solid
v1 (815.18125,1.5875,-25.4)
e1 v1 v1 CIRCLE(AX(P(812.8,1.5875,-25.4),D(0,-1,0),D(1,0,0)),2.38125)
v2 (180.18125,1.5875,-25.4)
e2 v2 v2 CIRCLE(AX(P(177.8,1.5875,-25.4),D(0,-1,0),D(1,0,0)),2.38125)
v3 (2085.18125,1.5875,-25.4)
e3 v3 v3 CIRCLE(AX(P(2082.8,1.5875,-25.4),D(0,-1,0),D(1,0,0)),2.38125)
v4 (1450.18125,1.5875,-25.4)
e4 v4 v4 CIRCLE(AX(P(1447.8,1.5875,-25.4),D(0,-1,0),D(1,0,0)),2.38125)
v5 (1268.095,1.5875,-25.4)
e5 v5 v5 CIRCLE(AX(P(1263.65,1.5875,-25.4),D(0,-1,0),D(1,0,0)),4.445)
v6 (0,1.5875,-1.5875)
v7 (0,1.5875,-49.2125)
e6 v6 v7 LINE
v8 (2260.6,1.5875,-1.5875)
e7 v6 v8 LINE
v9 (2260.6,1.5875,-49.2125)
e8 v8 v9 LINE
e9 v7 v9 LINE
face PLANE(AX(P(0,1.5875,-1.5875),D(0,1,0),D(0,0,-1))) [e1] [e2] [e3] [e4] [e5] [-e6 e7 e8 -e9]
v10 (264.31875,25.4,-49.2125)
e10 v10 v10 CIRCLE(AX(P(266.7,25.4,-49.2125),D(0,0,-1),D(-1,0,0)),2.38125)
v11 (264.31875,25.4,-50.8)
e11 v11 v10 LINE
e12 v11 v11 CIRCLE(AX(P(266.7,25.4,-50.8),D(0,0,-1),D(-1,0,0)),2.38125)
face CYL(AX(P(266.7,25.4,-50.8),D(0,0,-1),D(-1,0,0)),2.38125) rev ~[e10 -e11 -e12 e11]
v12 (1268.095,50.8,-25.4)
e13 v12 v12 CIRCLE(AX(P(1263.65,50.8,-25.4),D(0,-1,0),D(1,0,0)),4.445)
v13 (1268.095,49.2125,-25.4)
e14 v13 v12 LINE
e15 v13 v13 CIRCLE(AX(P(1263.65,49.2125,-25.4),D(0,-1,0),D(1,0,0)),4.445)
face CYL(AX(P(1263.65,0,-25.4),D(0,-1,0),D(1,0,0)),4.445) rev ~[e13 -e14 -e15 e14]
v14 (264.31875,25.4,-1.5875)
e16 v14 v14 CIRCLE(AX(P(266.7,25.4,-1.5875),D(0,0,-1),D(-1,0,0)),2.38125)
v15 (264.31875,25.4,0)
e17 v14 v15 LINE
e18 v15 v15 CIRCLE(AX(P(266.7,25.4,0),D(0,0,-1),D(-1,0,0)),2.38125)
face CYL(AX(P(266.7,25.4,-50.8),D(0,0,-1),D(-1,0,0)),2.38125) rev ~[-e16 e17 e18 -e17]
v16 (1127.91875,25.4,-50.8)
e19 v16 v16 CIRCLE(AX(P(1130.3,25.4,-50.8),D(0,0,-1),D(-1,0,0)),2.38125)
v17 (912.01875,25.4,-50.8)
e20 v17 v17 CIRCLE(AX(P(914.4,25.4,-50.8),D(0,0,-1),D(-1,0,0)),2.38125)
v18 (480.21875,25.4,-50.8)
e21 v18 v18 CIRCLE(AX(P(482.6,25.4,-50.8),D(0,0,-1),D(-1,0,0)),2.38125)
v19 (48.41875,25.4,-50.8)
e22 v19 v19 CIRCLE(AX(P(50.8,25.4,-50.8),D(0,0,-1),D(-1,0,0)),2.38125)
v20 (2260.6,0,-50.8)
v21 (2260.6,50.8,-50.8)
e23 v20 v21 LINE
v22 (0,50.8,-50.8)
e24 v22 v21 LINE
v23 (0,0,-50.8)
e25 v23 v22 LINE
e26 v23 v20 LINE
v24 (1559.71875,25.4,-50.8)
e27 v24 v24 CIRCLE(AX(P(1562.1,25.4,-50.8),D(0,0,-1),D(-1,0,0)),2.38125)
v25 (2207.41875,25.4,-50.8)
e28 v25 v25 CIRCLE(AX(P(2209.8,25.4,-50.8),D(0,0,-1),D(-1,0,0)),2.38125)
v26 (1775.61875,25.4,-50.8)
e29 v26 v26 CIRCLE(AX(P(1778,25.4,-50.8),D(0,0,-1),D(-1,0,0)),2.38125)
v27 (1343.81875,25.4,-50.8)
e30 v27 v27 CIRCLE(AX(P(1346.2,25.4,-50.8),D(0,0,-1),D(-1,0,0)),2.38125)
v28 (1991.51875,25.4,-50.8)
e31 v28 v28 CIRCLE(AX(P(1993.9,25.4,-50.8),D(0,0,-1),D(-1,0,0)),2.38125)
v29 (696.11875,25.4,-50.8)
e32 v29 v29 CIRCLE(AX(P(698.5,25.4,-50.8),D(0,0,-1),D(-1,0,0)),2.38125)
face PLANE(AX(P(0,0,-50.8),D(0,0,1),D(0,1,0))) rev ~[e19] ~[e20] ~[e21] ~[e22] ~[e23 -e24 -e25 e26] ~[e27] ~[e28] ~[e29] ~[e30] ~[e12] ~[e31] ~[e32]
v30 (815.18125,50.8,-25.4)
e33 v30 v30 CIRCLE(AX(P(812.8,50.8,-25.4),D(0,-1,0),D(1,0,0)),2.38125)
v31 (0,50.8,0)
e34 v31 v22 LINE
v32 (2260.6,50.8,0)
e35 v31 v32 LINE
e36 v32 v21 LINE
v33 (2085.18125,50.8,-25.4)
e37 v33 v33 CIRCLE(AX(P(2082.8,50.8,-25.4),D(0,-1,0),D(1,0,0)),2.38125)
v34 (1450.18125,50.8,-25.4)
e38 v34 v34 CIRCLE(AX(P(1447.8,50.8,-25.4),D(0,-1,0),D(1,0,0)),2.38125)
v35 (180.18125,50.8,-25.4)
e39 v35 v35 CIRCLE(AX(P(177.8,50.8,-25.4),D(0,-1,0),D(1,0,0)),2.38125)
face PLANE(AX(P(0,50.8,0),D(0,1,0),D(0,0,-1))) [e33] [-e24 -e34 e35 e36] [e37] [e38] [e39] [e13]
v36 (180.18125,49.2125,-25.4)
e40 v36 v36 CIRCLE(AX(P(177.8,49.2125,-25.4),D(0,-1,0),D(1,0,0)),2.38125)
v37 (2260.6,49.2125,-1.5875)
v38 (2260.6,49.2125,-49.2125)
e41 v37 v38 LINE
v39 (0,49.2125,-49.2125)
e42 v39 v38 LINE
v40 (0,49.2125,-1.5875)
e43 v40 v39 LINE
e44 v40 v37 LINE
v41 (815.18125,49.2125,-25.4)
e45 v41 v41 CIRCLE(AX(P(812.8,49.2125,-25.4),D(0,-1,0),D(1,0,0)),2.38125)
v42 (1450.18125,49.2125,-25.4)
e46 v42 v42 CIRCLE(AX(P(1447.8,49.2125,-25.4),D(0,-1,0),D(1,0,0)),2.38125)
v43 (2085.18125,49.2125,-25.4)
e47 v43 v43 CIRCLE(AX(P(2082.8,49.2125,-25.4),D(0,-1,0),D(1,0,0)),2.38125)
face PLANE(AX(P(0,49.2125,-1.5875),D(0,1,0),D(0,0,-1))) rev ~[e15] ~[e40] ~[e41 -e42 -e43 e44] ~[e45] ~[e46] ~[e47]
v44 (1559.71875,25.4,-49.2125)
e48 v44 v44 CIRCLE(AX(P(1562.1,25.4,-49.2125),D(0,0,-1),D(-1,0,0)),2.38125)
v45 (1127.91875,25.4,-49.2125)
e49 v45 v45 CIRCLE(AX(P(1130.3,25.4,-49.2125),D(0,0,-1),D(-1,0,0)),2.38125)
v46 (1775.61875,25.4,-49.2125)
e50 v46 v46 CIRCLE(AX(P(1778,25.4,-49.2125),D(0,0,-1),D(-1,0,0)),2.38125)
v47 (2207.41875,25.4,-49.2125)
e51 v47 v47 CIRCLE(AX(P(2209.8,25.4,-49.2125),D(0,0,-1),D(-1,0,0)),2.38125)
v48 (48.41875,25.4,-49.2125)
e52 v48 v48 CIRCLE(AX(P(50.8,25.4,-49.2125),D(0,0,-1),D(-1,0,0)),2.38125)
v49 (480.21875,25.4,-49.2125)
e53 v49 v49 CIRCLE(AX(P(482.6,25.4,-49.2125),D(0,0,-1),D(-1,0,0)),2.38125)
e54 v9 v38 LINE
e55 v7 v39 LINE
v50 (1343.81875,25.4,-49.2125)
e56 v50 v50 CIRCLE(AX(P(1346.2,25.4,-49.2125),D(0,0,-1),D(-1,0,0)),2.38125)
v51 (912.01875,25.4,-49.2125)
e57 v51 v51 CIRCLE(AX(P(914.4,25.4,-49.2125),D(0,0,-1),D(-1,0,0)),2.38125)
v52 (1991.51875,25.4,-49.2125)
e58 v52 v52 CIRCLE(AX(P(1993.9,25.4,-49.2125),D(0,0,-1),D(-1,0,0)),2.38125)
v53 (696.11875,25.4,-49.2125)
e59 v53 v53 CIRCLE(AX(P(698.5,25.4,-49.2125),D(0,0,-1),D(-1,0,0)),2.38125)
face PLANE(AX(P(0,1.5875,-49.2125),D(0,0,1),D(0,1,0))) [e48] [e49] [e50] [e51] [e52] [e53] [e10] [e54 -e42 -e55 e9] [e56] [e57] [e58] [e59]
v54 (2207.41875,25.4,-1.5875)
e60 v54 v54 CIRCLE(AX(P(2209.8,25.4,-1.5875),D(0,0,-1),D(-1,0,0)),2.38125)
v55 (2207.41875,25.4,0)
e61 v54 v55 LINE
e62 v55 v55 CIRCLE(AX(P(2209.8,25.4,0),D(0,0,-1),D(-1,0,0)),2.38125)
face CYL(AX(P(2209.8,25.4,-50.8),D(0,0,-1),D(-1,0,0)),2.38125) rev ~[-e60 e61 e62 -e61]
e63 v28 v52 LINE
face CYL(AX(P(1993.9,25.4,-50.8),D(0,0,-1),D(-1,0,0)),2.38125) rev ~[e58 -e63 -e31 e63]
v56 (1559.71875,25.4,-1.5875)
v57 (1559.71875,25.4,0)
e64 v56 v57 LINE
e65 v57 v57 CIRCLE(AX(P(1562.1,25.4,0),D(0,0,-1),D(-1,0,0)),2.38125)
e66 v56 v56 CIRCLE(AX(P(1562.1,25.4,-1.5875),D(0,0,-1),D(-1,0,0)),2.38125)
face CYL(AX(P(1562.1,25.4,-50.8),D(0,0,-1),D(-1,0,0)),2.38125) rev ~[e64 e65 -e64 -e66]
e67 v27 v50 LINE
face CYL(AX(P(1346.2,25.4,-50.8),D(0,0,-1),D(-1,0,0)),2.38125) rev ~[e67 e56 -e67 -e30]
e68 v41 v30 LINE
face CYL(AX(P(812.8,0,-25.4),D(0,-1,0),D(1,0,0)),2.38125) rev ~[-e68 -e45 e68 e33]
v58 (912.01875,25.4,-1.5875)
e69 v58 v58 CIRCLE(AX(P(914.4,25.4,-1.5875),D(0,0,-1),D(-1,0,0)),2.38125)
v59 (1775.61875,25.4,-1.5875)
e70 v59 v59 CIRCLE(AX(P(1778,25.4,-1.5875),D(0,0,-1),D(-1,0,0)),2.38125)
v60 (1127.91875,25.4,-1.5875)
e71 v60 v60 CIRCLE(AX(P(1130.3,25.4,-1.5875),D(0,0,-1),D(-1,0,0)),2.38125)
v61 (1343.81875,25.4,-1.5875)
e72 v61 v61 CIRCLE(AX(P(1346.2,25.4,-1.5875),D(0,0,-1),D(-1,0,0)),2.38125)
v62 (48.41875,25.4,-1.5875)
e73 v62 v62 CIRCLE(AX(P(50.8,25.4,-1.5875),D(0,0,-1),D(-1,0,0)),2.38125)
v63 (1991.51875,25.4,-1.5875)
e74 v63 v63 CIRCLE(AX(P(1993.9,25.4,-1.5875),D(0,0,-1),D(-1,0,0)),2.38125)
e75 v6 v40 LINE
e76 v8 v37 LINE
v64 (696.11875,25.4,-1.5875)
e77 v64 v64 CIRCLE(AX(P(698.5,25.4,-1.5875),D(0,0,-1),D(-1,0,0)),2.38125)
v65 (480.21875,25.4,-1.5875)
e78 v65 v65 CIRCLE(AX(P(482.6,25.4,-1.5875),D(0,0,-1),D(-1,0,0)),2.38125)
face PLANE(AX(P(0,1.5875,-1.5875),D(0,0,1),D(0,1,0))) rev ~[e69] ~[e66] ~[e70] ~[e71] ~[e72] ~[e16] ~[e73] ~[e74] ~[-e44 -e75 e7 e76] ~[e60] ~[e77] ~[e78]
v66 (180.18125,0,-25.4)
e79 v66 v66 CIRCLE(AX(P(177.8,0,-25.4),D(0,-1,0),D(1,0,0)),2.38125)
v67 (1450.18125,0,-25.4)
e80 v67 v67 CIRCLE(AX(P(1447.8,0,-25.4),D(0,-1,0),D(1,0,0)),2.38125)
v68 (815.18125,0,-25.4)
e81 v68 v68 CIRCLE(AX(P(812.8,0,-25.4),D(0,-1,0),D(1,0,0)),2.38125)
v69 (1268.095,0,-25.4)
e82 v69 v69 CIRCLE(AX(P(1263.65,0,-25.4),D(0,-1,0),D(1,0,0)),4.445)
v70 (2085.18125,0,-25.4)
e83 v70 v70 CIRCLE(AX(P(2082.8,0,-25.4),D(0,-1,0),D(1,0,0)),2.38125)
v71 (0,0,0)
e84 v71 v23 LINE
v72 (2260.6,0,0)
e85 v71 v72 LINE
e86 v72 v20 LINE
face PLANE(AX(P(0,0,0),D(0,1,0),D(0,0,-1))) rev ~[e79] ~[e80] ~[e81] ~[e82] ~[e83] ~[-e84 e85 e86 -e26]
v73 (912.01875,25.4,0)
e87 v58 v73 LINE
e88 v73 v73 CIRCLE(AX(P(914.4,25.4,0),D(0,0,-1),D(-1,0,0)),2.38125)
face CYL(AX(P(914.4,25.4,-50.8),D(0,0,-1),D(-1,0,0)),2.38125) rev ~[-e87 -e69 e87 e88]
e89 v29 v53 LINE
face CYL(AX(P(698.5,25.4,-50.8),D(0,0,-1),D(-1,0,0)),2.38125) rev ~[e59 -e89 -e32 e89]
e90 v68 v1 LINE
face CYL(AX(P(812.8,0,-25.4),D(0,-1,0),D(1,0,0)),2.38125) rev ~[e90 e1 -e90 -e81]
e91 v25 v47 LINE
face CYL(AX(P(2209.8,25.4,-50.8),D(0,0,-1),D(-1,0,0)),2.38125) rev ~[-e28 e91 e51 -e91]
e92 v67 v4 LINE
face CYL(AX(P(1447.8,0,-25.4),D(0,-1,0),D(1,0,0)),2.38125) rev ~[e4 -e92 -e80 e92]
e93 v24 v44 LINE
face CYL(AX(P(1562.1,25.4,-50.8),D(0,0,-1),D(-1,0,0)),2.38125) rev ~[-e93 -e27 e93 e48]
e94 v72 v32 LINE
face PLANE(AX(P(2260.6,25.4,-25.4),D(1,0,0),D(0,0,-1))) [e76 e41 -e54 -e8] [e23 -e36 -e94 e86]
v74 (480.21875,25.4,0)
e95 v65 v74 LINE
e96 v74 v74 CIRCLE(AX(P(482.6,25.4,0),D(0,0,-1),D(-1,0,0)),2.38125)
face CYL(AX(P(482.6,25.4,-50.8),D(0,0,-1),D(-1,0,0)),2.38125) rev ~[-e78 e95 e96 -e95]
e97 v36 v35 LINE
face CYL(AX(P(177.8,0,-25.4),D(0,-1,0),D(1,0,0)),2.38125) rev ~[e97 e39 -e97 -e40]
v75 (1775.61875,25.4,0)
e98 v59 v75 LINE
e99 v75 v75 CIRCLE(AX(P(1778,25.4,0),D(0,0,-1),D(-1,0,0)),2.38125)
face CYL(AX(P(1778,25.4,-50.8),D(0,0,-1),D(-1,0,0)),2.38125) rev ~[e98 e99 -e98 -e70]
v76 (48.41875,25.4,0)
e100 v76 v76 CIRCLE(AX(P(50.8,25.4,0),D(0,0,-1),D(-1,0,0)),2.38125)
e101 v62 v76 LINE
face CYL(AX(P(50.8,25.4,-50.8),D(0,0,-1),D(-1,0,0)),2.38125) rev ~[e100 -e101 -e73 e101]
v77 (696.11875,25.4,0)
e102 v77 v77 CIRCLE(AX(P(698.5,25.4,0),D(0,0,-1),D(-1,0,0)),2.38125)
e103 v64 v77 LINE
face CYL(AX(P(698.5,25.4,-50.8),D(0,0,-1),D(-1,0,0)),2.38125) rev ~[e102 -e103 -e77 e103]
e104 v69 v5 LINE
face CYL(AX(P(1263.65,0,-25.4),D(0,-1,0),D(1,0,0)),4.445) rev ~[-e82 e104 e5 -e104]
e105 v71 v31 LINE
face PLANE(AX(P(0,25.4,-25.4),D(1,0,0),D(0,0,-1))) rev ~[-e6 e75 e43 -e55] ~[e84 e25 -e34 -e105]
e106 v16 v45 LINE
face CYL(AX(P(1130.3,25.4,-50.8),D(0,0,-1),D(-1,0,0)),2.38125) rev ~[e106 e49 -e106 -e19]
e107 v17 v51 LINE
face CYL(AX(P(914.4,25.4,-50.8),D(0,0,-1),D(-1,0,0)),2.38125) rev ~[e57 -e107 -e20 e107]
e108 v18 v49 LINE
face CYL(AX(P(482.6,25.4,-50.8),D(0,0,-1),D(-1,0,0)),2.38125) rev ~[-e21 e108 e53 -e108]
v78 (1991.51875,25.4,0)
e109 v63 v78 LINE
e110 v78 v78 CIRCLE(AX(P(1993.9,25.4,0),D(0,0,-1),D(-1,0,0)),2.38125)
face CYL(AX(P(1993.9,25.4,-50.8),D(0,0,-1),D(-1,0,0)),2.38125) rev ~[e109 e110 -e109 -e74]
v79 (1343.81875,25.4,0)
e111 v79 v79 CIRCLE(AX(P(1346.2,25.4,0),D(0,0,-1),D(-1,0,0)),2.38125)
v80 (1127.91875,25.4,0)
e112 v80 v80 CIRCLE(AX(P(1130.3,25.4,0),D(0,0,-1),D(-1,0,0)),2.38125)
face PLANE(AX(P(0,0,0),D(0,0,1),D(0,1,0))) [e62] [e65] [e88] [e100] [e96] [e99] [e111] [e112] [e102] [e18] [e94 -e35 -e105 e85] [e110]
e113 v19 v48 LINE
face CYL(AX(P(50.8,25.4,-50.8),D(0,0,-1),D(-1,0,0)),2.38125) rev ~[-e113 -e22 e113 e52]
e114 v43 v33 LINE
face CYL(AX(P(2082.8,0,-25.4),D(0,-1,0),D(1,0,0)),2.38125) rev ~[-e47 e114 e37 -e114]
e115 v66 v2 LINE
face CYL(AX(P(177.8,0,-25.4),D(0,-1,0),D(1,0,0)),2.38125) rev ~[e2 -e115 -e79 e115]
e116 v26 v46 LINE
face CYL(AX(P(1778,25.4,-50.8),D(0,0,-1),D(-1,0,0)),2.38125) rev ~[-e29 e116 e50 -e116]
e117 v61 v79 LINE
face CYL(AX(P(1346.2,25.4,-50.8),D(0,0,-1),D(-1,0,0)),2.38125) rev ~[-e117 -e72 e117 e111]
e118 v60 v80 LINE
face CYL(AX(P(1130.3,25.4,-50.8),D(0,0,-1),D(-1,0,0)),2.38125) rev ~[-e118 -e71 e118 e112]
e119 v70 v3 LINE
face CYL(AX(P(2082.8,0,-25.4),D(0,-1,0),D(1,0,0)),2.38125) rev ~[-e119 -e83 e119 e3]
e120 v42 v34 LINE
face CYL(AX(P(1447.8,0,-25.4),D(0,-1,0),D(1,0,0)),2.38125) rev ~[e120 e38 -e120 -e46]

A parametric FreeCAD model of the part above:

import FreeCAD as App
import Part
import Sketcher
from FreeCAD import Vector
Q = App.Units.Quantity


def add_polygon(sketch, points):
    """Adds a closed chain of lines whose ends are joined by coincident constraints."""
    first, n = sketch.GeometryCount, len(points)
    for a, b in zip(points, points[1:] + points[:1]):
        sketch.addGeometry(Part.LineSegment(App.Vector(*a, 0), App.Vector(*b, 0)), False)
    for i in range(n):
        sketch.addConstraint(Sketcher.Constraint("Coincident", first + i, 2, first + (i + 1) % n, 1))

doc = App.newDocument("Part")
params = doc.addObject("Spreadsheet::Sheet", "Params")
for row, (alias, value) in enumerate([
    ("sketch1_width", "2 in"),
    ("sketch1_width2", "1.875 in"),
    ("pad1_length", "89 in"),
    ("sketch2_diameter", "0.1875 in"),
    ("linearpattern_pitch", "8.5 in"),
    ("sketch3_diameter", "0.1875 in"),
    ("pocket2_length", "2 in"),
    ("linearpattern2_pitch", "25 in"),
    ("sketch4_diameter", "0.35 in"),
], start=1):
    params.set(f"A{row}", alias)
    params.set(f"B{row}", "=" + value)
    params.setAlias(f"B{row}", alias)

body = doc.addObject("PartDesign::Body", "Body")

# Sketch on YZ plane
sketch1 = doc.addObject("Sketcher::SketchObject", "Sketch")
body.addObject(sketch1)
sketch1.AttachmentSupport = (doc.YZ_Plane, [""])
sketch1.MapMode = "FlatFace"
add_polygon(sketch1, [(51, 0), (0, 0), (0, -51), (51, -51)])  # lines 0-3
add_polygon(sketch1, [(2, -49), (2, -2), (49, -2), (49, -49)])  # lines 4-7
sketch1.addConstraint(Sketcher.Constraint("Horizontal", 0))
sketch1.addConstraint(Sketcher.Constraint("Vertical", 1))
sketch1.addConstraint(Sketcher.Constraint("Horizontal", 2))
sketch1.addConstraint(Sketcher.Constraint("Vertical", 3))
sketch1.addConstraint(Sketcher.Constraint("Vertical", 4))
sketch1.addConstraint(Sketcher.Constraint("Horizontal", 5))
sketch1.addConstraint(Sketcher.Constraint("Vertical", 6))
sketch1.addConstraint(Sketcher.Constraint("Horizontal", 7))
sketch1.addConstraint(Sketcher.Constraint("Coincident", 0, 2, -1, 1))
sketch1.addConstraint(Sketcher.Constraint("Equal", 2, 1))
sketch1.addConstraint(Sketcher.Constraint("Equal", 7, 4))
sketch1.addConstraint(Sketcher.Constraint("DistanceX", 0, 2, 0, 1, Q("2 in")))
sketch1.addConstraint(Sketcher.Constraint("DistanceX", 5, 1, 5, 2, Q("1.875 in")))
sketch1.addConstraint(Sketcher.Constraint("DistanceX", -1, 1, 4, 2, Q("0.0625 in")))
sketch1.addConstraint(Sketcher.Constraint("DistanceY", 4, 2, -1, 1, Q("0.0625 in")))
sketch1.setExpression("Constraints[19]", "Params.sketch1_width")
sketch1.setExpression("Constraints[20]", "Params.sketch1_width2")
pad1 = doc.addObject("PartDesign::Pad", "Pad")
body.addObject(pad1)
pad1.Profile = sketch1
pad1.setExpression("Length", "Params.pad1_length")

# Sketch on XY plane
sketch2 = doc.addObject("Sketcher::SketchObject", "Sketch001")
body.addObject(sketch2)
sketch2.AttachmentSupport = (doc.XY_Plane, [""])
sketch2.MapMode = "FlatFace"
sketch2.AttachmentOffset = App.Placement(Vector(0, 0, -2 * 25.4), App.Rotation())
sketch2.addGeometry(Part.Circle(Vector(50.8, 25.4, 0), Vector(0, 0, 1), 2.4), False)
sketch2.addConstraint(Sketcher.Constraint("Diameter", 0, Q("0.1875 in")))
sketch2.addConstraint(Sketcher.Constraint("DistanceX", -1, 1, 0, 3, Q("2 in")))
sketch2.addConstraint(Sketcher.Constraint("DistanceY", -1, 1, 0, 3, Q("1 in")))
sketch2.setExpression("Constraints[0]", "Params.sketch2_diameter")
pocket1 = doc.addObject("PartDesign::Pocket", "Pocket")
body.addObject(pocket1)
pocket1.Profile = sketch2
pocket1.Type = "ThroughAll"
pocket1.Reversed = True
doc.recompute()

linearpattern = doc.addObject("PartDesign::LinearPattern", "LinearPattern")
body.addObject(linearpattern)
linearpattern.Originals = [pocket1]
linearpattern.Direction = (doc.X_Axis, [""])
linearpattern.Mode = "offset"
linearpattern.setExpression("Offset", "Params.linearpattern_pitch")
linearpattern.Occurrences = 11
body.Tip = linearpattern

# Sketch on XZ plane
sketch3 = doc.addObject("Sketcher::SketchObject", "Sketch002")
body.addObject(sketch3)
sketch3.AttachmentSupport = (doc.XZ_Plane, [""])
sketch3.MapMode = "FlatFace"
sketch3.addGeometry(Part.Circle(Vector(177.8, -25.4, 0), Vector(0, 0, 1), 2.4), False)
sketch3.addConstraint(Sketcher.Constraint("Diameter", 0, Q("0.1875 in")))
sketch3.addConstraint(Sketcher.Constraint("DistanceX", -1, 1, 0, 3, Q("7 in")))
sketch3.addConstraint(Sketcher.Constraint("DistanceY", 0, 3, -1, 1, Q("1 in")))
sketch3.setExpression("Constraints[0]", "Params.sketch3_diameter")
pocket2 = doc.addObject("PartDesign::Pocket", "Pocket001")
body.addObject(pocket2)
pocket2.Profile = sketch3
pocket2.setExpression("Length", "Params.pocket2_length")
doc.recompute()

linearpattern2 = doc.addObject("PartDesign::LinearPattern", "LinearPattern001")
body.addObject(linearpattern2)
linearpattern2.Originals = [pocket2]
linearpattern2.Direction = (doc.X_Axis, [""])
linearpattern2.Mode = "offset"
linearpattern2.setExpression("Offset", "Params.linearpattern2_pitch")
linearpattern2.Occurrences = 4
body.Tip = linearpattern2

# Sketch on XZ plane
sketch4 = doc.addObject("Sketcher::SketchObject", "Sketch003")
body.addObject(sketch4)
sketch4.AttachmentSupport = (doc.XZ_Plane, [""])
sketch4.MapMode = "FlatFace"
sketch4.addGeometry(Part.Circle(Vector(1263.7, -25.4, 0), Vector(0, 0, 1), 4.4), False)
sketch4.addConstraint(Sketcher.Constraint("Diameter", 0, Q("0.35 in")))
sketch4.addConstraint(Sketcher.Constraint("DistanceY", 0, 3, -1, 1, Q("1 in")))
sketch4.addConstraint(Sketcher.Constraint("DistanceX", -1, 1, 0, 3, Q("49.75 in")))
sketch4.setExpression("Constraints[0]", "Params.sketch4_diameter")
pocket3 = doc.addObject("PartDesign::Pocket", "Pocket002")
body.addObject(pocket3)
pocket3.Profile = sketch4
pocket3.Type = "ThroughAll"

doc.recompute()
